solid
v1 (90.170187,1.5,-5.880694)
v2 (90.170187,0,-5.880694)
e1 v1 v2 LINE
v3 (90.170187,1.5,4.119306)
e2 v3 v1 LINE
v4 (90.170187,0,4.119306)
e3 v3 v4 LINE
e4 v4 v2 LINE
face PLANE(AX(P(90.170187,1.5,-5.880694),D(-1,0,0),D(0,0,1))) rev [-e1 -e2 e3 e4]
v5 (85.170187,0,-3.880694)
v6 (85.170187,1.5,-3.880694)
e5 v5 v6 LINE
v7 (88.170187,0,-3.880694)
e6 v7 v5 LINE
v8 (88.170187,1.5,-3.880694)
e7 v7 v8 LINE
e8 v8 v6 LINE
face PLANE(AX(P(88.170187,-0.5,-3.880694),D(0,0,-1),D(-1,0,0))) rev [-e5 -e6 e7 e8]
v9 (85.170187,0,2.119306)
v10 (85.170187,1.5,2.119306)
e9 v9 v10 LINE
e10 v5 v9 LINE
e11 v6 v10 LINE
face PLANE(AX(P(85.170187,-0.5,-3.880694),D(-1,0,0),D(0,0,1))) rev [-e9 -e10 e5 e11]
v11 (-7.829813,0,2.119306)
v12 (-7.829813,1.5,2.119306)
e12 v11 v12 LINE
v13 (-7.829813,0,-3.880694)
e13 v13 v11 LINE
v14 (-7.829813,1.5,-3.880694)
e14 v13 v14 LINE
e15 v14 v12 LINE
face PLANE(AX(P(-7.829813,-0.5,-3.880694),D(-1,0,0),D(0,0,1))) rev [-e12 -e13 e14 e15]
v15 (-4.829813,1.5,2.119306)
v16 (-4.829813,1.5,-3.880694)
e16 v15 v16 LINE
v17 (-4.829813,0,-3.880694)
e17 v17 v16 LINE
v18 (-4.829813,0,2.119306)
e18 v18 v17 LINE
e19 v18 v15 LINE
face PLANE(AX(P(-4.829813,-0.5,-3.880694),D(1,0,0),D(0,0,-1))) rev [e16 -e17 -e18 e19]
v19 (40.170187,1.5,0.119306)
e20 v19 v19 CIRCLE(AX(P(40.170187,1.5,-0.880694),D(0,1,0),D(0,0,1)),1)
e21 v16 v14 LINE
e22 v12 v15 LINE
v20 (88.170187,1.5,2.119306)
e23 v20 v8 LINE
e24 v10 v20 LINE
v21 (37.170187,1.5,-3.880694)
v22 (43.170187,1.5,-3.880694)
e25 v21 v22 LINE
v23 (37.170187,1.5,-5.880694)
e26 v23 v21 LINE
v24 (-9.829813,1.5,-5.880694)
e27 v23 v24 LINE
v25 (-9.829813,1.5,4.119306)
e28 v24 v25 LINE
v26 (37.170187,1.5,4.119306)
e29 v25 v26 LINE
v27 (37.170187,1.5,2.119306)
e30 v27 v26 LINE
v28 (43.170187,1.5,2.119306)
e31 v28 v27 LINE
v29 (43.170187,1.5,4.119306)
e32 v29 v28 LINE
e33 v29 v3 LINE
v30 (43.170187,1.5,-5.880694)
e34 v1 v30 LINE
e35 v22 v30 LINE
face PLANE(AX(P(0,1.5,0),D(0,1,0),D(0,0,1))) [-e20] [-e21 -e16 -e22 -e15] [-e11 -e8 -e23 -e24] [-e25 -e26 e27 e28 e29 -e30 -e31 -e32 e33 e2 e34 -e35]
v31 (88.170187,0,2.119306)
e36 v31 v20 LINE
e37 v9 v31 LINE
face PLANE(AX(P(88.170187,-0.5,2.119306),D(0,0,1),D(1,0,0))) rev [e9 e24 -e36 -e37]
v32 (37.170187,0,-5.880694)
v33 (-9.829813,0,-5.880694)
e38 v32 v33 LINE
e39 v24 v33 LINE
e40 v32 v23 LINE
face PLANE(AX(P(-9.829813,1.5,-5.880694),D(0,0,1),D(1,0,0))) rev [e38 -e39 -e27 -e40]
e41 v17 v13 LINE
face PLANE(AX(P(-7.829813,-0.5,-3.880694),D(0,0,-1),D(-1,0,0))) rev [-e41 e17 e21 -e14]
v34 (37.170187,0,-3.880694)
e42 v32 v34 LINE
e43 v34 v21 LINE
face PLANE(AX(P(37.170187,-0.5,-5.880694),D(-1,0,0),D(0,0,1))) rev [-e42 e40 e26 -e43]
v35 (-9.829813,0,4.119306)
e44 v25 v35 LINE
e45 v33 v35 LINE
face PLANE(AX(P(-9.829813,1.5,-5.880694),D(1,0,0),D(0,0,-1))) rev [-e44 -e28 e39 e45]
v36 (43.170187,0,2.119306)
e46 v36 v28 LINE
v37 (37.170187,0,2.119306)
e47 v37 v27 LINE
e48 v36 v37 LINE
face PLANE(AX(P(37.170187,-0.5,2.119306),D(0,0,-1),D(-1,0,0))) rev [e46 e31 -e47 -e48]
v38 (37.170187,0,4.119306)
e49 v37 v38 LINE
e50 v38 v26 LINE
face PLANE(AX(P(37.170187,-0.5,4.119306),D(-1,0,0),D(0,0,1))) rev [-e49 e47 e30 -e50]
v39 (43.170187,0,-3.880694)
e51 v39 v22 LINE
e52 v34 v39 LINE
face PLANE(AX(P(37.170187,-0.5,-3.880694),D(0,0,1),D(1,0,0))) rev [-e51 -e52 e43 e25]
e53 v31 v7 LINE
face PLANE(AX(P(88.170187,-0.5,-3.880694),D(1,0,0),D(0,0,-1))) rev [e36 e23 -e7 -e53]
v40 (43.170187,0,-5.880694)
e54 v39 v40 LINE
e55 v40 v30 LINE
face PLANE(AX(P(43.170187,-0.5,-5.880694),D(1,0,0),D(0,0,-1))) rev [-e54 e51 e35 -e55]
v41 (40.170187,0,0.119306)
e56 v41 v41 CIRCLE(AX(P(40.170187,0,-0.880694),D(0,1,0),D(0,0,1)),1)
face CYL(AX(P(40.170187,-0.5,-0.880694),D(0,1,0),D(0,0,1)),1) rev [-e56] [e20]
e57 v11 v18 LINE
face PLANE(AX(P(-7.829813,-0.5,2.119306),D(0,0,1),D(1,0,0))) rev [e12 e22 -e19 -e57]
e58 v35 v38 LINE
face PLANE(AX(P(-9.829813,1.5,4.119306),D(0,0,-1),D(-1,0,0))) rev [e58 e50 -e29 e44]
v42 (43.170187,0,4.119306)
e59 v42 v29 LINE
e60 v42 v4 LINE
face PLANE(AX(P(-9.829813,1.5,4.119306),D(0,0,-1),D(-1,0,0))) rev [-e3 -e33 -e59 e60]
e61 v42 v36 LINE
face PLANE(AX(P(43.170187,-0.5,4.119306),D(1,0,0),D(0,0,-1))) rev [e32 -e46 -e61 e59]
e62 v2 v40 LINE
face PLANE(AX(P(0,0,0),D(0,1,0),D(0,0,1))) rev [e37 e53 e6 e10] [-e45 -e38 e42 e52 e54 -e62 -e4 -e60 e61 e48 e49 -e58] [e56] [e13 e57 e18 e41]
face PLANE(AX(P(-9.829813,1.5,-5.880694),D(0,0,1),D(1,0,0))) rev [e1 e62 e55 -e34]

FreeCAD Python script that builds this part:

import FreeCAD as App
import Part
import Sketcher
from FreeCAD import Vector
Q = App.Units.Quantity


def add_polygon(sketch, points):
    """Adds a closed chain of lines whose ends are joined by coincident constraints."""
    first, n = sketch.GeometryCount, len(points)
    for a, b in zip(points, points[1:] + points[:1]):
        sketch.addGeometry(Part.LineSegment(App.Vector(*a, 0), App.Vector(*b, 0)), False)
    for i in range(n):
        sketch.addConstraint(Sketcher.Constraint("Coincident", first + i, 2, first + (i + 1) % n, 1))

doc = App.newDocument("Part")
body = doc.addObject("PartDesign::Body", "Body")

# Sketch on XZ plane
sketch1 = body.newObject("Sketcher::SketchObject", "Sketch")
sketch1.AttachmentSupport = (doc.getObject("XZ_Plane"), [""])
sketch1.MapMode = "FlatFace"
add_polygon(sketch1, [(-9.829813, -5.880694), (-9.829813, 4.119306), (90.170187, 4.119306), (90.170187, -5.880694)])  # lines 0-3
sketch1.addConstraint(Sketcher.Constraint("Vertical", 0))
sketch1.addConstraint(Sketcher.Constraint("Horizontal", 1))
sketch1.addConstraint(Sketcher.Constraint("Vertical", 2))
sketch1.addConstraint(Sketcher.Constraint("Horizontal", 3))
sketch1.addConstraint(Sketcher.Constraint("DistanceX", 1, 1, 1, 2, Q("100 mm")))
sketch1.addConstraint(Sketcher.Constraint("DistanceY", 0, 1, 0, 2, Q("10 mm")))
sketch1.addConstraint(Sketcher.Constraint("DistanceX", 0, 2, -1, 1, Q("9.829813 mm")))
sketch1.addConstraint(Sketcher.Constraint("DistanceY", -1, 1, 0, 2, Q("4.119306 mm")))
pad1 = body.newObject("PartDesign::Pad", "Pad")
pad1.Profile = sketch1
pad1.Length = 1.5
pad1.Reversed = True

# Sketch on XZ plane
sketch2 = body.newObject("Sketcher::SketchObject", "Sketch001")
sketch2.AttachmentSupport = (doc.getObject("XZ_Plane"), [""])
sketch2.MapMode = "FlatFace"
sketch2.AttachmentOffset = App.Placement(Vector(0, 0, -1.5), App.Rotation())
sketch2.addGeometry(Part.Circle(Vector(40.170187, -0.880694, 0), Vector(0, 0, 1), 1), False)
sketch2.addConstraint(Sketcher.Constraint("Diameter", 0, Q("2 mm")))
sketch2.addConstraint(Sketcher.Constraint("DistanceX", -1, 1, 0, 3, Q("40.170187 mm")))
sketch2.addConstraint(Sketcher.Constraint("DistanceY", 0, 3, -1, 1, Q("0.880694 mm")))
pocket1 = body.newObject("PartDesign::Pocket", "Pocket")
pocket1.Profile = sketch2
pocket1.Length = 2
pocket1.Reversed = True

# Sketch on XZ plane
sketch3 = body.newObject("Sketcher::SketchObject", "Sketch002")
sketch3.AttachmentSupport = (doc.getObject("XZ_Plane"), [""])
sketch3.MapMode = "FlatFace"
sketch3.AttachmentOffset = App.Placement(Vector(0, 0, -1.5), App.Rotation())
add_polygon(sketch3, [(37.170187, -5.880694), (37.170187, -3.880694), (43.170187, -3.880694), (43.170187, -5.880694)])  # lines 0-3
add_polygon(sketch3, [(37.170187, 2.119306), (37.170187, 4.119306), (43.170187, 4.119306), (43.170187, 2.119306)])  # lines 4-7
add_polygon(sketch3, [(-7.829813, -3.880694), (-7.829813, 2.119306), (-4.829813, 2.119306), (-4.829813, -3.880694)])  # lines 8-11
add_polygon(sketch3, [(85.170187, -3.880694), (85.170187, 2.119306), (88.170187, 2.119306), (88.170187, -3.880694)])  # lines 12-15
sketch3.addConstraint(Sketcher.Constraint("Vertical", 0))
sketch3.addConstraint(Sketcher.Constraint("Horizontal", 1))
sketch3.addConstraint(Sketcher.Constraint("Vertical", 2))
sketch3.addConstraint(Sketcher.Constraint("Horizontal", 3))
sketch3.addConstraint(Sketcher.Constraint("Vertical", 4))
sketch3.addConstraint(Sketcher.Constraint("Horizontal", 5))
sketch3.addConstraint(Sketcher.Constraint("Vertical", 6))
sketch3.addConstraint(Sketcher.Constraint("Horizontal", 7))
sketch3.addConstraint(Sketcher.Constraint("Vertical", 8))
sketch3.addConstraint(Sketcher.Constraint("Horizontal", 9))
sketch3.addConstraint(Sketcher.Constraint("Vertical", 10))
sketch3.addConstraint(Sketcher.Constraint("Horizontal", 11))
sketch3.addConstraint(Sketcher.Constraint("Vertical", 12))
sketch3.addConstraint(Sketcher.Constraint("Horizontal", 13))
sketch3.addConstraint(Sketcher.Constraint("Vertical", 14))
sketch3.addConstraint(Sketcher.Constraint("Horizontal", 15))
sketch3.addConstraint(Sketcher.Constraint("Horizontal", 7, 2, 8, 2))
sketch3.addConstraint(Sketcher.Constraint("Horizontal", 1, 2, 10, 2))
sketch3.addConstraint(Sketcher.Constraint("Horizontal", 9, 2, 12, 2))
sketch3.addConstraint(Sketcher.Constraint("Horizontal", 11, 2, 14, 2))
sketch3.addConstraint(Sketcher.Constraint("Vertical", 3, 2, 4, 2))
sketch3.addConstraint(Sketcher.Constraint("Vertical", 2, 2, 5, 2))
sketch3.addConstraint(Sketcher.Constraint("Equal", 11, 13))
sketch3.addConstraint(Sketcher.Constraint("Equal", 2, 4))
sketch3.addConstraint(Sketcher.Constraint("Equal", 7, 8))
sketch3.addConstraint(Sketcher.Constraint("DistanceX", 1, 1, 1, 2, Q("6 mm")))
sketch3.addConstraint(Sketcher.Constraint("DistanceX", 9, 1, 9, 2, Q("3 mm")))
sketch3.addConstraint(Sketcher.Constraint("DistanceY", 0, 1, 0, 2, Q("2 mm")))
sketch3.addConstraint(Sketcher.Constraint("DistanceX", 8, 2, 7, 2, Q("45 mm")))
sketch3.addConstraint(Sketcher.Constraint("DistanceX", 6, 2, 12, 2, Q("42 mm")))
sketch3.addConstraint(Sketcher.Constraint("DistanceX", -1, 1, 0, 2, Q("37.170187 mm")))
sketch3.addConstraint(Sketcher.Constraint("DistanceY", 0, 2, -1, 1, Q("3.880694 mm")))
pocket2 = body.newObject("PartDesign::Pocket", "Pocket001")
pocket2.Profile = sketch3
pocket2.Length = 2
pocket2.Reversed = True

doc.recompute()
